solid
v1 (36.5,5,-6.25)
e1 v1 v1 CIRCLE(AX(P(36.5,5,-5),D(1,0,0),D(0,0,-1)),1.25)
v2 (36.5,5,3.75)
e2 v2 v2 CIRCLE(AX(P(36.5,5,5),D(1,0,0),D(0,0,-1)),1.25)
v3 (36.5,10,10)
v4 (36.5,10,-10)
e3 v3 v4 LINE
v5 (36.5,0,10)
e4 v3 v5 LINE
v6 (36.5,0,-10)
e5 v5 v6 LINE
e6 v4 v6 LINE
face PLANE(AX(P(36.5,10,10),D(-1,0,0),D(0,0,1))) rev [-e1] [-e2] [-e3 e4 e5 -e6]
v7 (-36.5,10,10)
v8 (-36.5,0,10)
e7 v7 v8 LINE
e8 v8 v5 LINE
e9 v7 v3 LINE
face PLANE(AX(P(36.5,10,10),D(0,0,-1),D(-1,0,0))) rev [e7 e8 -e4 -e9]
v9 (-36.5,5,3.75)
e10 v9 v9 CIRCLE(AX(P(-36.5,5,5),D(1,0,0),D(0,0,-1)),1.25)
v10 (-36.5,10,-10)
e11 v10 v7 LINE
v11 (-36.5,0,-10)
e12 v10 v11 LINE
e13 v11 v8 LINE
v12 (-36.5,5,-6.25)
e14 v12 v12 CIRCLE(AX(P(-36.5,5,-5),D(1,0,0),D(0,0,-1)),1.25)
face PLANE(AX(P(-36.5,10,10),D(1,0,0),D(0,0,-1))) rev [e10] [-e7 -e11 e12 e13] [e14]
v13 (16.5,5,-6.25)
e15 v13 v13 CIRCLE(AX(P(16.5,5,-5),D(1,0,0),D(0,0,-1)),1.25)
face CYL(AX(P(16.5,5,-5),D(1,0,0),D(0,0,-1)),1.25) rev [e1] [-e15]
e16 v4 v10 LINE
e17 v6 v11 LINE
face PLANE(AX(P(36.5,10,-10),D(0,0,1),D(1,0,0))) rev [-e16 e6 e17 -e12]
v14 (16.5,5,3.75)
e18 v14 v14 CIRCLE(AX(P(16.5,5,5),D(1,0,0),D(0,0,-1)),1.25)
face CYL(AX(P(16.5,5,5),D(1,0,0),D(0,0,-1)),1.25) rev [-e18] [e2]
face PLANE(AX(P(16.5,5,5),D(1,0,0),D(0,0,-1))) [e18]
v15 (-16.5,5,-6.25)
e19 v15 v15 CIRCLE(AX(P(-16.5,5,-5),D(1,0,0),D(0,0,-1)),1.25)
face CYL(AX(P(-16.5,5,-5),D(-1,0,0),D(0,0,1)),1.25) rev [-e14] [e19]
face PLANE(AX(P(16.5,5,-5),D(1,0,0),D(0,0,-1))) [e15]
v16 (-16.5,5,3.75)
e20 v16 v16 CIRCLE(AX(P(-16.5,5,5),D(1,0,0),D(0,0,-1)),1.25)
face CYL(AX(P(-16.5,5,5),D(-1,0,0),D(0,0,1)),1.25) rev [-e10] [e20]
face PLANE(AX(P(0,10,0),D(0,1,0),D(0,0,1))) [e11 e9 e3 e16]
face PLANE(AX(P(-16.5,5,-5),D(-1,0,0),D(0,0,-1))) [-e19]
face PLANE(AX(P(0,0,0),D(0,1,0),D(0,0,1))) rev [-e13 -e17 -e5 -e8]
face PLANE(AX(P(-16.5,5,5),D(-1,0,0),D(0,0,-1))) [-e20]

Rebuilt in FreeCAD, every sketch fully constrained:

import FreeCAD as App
import Part
import Sketcher

V = App.Vector
Q = App.Units.Quantity

doc = App.newDocument("Part")
body = doc.addObject("PartDesign::Body", "Body")

sketch1 = body.newObject("Sketcher::SketchObject", "Sketch")
sketch1.AttachmentSupport = (doc.getObject("XZ_Plane"), [""])
sketch1.MapMode = "FlatFace"
sketch1.addGeometry([
    Part.LineSegment(V(-36.5, -10, 0), V(-36.5, 10, 0)),
    Part.LineSegment(V(-36.5, 10, 0), V(36.5, 10, 0)),
    Part.LineSegment(V(36.5, 10, 0), V(36.5, -10, 0)),
    Part.LineSegment(V(36.5, -10, 0), V(-36.5, -10, 0)),
], False)
sketch1.addConstraint([
    Sketcher.Constraint("Coincident", 0, 2, 1, 1),
    Sketcher.Constraint("Coincident", 1, 2, 2, 1),
    Sketcher.Constraint("Coincident", 2, 2, 3, 1),
    Sketcher.Constraint("Coincident", 3, 2, 0, 1),
    Sketcher.Constraint("Vertical", 0),
    Sketcher.Constraint("Horizontal", 1),
    Sketcher.Constraint("Vertical", 2),
    Sketcher.Constraint("Horizontal", 3),
    Sketcher.Constraint("Symmetric", 0, 2, 2, 2, -1, 1),
    Sketcher.Constraint("DistanceX", 1, 1, 1, 2, Q("73 mm")),
    Sketcher.Constraint("DistanceY", 0, 1, 0, 2, Q("20 mm")),
])
pad1 = body.newObject("PartDesign::Pad", "Pad")
pad1.Profile = sketch1
pad1.Length = 10
pad1.Reversed = True

sketch2 = body.newObject("Sketcher::SketchObject", "Sketch001")
sketch2.AttachmentSupport = (doc.getObject("YZ_Plane"), [""])
sketch2.MapMode = "FlatFace"
sketch2.AttachmentOffset = App.Placement(V(0, 0, 36.5), App.Rotation())
sketch2.addGeometry([
    Part.Circle(V(5, 5, 0), V(0, 0, 1), 1.25),
    Part.Circle(V(5, -5, 0), V(0, 0, 1), 1.25),
], False)
sketch2.addConstraint([
    Sketcher.Constraint("Equal", 0, 1),
    Sketcher.Constraint("Symmetric", 0, 3, 1, 3, -1),
    Sketcher.Constraint("Diameter", 0, Q("2.5 mm")),
    Sketcher.Constraint("DistanceX", -1, 1, 0, 3, Q("5 mm")),
    Sketcher.Constraint("DistanceY", -1, 1, 0, 3, Q("5 mm")),
])
pocket1 = body.newObject("PartDesign::Pocket", "Pocket")
pocket1.Profile = sketch2
pocket1.Length = 20
doc.recompute()

mirrored = body.newObject("PartDesign::Mirrored", "Mirrored")
mirrored.Originals = [pocket1]
mirrored.MirrorPlane = (doc.getObject("YZ_Plane"), [""])
body.Tip = mirrored

doc.recompute()
